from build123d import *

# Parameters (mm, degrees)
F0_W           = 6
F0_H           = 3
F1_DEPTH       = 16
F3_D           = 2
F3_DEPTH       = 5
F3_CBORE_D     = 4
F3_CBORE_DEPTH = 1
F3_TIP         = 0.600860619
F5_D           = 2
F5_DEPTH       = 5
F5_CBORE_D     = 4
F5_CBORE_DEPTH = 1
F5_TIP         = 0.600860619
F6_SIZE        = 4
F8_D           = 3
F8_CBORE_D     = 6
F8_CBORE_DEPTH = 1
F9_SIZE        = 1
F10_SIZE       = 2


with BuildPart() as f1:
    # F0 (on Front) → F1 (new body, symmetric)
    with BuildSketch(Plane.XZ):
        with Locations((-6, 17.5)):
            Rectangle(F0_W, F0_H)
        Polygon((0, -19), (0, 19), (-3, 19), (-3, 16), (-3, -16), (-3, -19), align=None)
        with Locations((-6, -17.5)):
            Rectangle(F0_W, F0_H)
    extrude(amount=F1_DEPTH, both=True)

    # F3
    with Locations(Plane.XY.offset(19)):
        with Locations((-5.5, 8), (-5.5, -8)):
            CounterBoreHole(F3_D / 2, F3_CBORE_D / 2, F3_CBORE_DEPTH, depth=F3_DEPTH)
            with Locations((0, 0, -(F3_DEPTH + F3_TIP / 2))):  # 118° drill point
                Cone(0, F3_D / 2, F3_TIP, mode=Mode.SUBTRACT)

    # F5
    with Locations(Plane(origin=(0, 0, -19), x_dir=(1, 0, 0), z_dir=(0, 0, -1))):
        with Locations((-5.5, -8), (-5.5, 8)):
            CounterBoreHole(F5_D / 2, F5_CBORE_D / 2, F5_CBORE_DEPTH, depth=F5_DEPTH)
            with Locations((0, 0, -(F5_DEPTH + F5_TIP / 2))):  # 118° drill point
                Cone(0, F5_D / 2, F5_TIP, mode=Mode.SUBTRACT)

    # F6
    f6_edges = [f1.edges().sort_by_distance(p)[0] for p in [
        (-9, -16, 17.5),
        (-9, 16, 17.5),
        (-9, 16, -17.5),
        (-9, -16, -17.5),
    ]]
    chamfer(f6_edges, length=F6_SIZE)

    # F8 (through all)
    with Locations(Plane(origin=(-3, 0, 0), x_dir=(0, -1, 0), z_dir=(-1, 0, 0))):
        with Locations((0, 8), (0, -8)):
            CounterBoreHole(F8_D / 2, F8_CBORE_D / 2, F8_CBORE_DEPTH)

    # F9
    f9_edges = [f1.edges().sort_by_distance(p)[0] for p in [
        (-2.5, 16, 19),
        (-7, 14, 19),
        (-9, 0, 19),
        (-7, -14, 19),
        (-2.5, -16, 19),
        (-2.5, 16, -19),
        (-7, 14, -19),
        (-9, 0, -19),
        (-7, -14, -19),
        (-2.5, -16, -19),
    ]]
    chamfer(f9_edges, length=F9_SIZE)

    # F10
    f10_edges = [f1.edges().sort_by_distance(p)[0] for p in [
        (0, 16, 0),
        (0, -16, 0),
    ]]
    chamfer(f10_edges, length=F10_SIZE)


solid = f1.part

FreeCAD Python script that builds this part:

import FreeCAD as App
import Part
import Sketcher

V = App.Vector
Q = App.Units.Quantity


def edges_at(feature, points):
    """Names of the edges that pass closest to the given points."""
    edges = feature.Shape.Edges
    near = lambda p: min(range(len(edges)), key=lambda i: edges[i].distToShape(Part.Vertex(*p))[0])
    return sorted({f"Edge{near(p) + 1}" for p in points})


def add_polygon(sketch, points):
    """Adds a closed chain of lines whose ends are joined by coincident constraints."""
    first, n = sketch.GeometryCount, len(points)
    for a, b in zip(points, points[1:] + points[:1]):
        sketch.addGeometry(Part.LineSegment(App.Vector(*a, 0), App.Vector(*b, 0)), False)
    for i in range(n):
        sketch.addConstraint(Sketcher.Constraint("Coincident", first + i, 2, first + (i + 1) % n, 1))

doc = App.newDocument("Part")
body = doc.addObject("PartDesign::Body", "Body")

# Sketch on XZ plane
sketch1 = body.newObject("Sketcher::SketchObject", "Sketch")
sketch1.AttachmentSupport = (doc.getObject("XZ_Plane"), [""])
sketch1.MapMode = "FlatFace"
add_polygon(sketch1, [(-9, 19), (-9, 16), (-3, 16), (-3, -16), (-9, -16), (-9, -19), (0, -19), (0, 19)])  # lines 0-7
sketch1.addConstraint([
    Sketcher.Constraint("Vertical", 0),
    Sketcher.Constraint("Horizontal", 1),
    Sketcher.Constraint("Vertical", 2),
    Sketcher.Constraint("Horizontal", 3),
    Sketcher.Constraint("Vertical", 4),
    Sketcher.Constraint("Horizontal", 5),
    Sketcher.Constraint("Vertical", 6),
    Sketcher.Constraint("Horizontal", 7),
    Sketcher.Constraint("Symmetric", 5, 2, 6, 2, -1, 1),
    Sketcher.Constraint("Symmetric", 0, 2, 3, 2, -1),
    Sketcher.Constraint("DistanceX", 1, 1, 1, 2, Q("6 mm")),
    Sketcher.Constraint("DistanceX", 5, 1, 5, 2, Q("9 mm")),
    Sketcher.Constraint("DistanceY", 0, 2, 0, 1, Q("3 mm")),
    Sketcher.Constraint("DistanceY", 2, 2, 2, 1, Q("32 mm")),
])
pad1 = body.newObject("PartDesign::Pad", "Pad")
pad1.Profile = sketch1
pad1.Length = 32
pad1.Midplane = True

# Sketch on XY plane
sketch2 = body.newObject("Sketcher::SketchObject", "Sketch001")
sketch2.AttachmentSupport = (doc.getObject("XY_Plane"), [""])
sketch2.MapMode = "FlatFace"
sketch2.AttachmentOffset = App.Placement(V(0, 0, 19), App.Rotation())
sketch2.addGeometry([
    Part.Circle(V(-5.5, 8, 0), V(0, 0, 1), 1),
    Part.Circle(V(-5.5, -8, 0), V(0, 0, 1), 1),
], False)
sketch2.addConstraint([
    Sketcher.Constraint("Equal", 0, 1),
    Sketcher.Constraint("Symmetric", 0, 3, 1, 3, -1),
    Sketcher.Constraint("Diameter", 0, Q("2 mm")),
    Sketcher.Constraint("DistanceY", -1, 1, 0, 3, Q("8 mm")),
    Sketcher.Constraint("DistanceX", 0, 3, -1, 1, Q("5.5 mm")),
])
doc.recompute()
hole = body.newObject("PartDesign::Hole", "Hole")
hole.Profile = sketch2
hole.ThreadType = "None"
hole.Diameter = 2
hole.DepthType = "Dimension"
hole.Depth = 5
hole.DrillPoint = "Angled"
hole.DrillPointAngle = 118
hole.HoleCutType = "Counterbore"
hole.HoleCutDiameter = 4
hole.HoleCutDepth = 1

# Sketch on XY plane
sketch3 = body.newObject("Sketcher::SketchObject", "Sketch002")
sketch3.AttachmentSupport = (doc.getObject("XY_Plane"), [""])
sketch3.MapMode = "FlatFace"
sketch3.AttachmentOffset = App.Placement(V(0, 0, -19), App.Rotation())
sketch3.addGeometry([
    Part.Circle(V(-5.5, 8, 0), V(0, 0, 1), 1),
    Part.Circle(V(-5.5, -8, 0), V(0, 0, 1), 1),
], False)
sketch3.addConstraint([
    Sketcher.Constraint("Equal", 0, 1),
    Sketcher.Constraint("Symmetric", 0, 3, 1, 3, -1),
    Sketcher.Constraint("Diameter", 0, Q("2 mm")),
    Sketcher.Constraint("DistanceY", -1, 1, 0, 3, Q("8 mm")),
    Sketcher.Constraint("DistanceX", 0, 3, -1, 1, Q("5.5 mm")),
])
doc.recompute()
hole2 = body.newObject("PartDesign::Hole", "Hole001")
hole2.Profile = sketch3
hole2.ThreadType = "None"
hole2.Diameter = 2
hole2.DepthType = "Dimension"
hole2.Depth = 5
hole2.DrillPoint = "Angled"
hole2.DrillPointAngle = 118
hole2.HoleCutType = "Counterbore"
hole2.HoleCutDiameter = 4
hole2.HoleCutDepth = 1
hole2.Reversed = True
doc.recompute()

chamfer = body.newObject("PartDesign::Chamfer", "Chamfer")
chamfer.Base = (hole2, edges_at(hole2, [
    (-9, -16, 17.5),
    (-9, 16, 17.5),
    (-9, 16, -17.5),
    (-9, -16, -17.5),
]))
chamfer.Size = 4

# Sketch on YZ plane
sketch4 = body.newObject("Sketcher::SketchObject", "Sketch003")
sketch4.AttachmentSupport = (doc.getObject("YZ_Plane"), [""])
sketch4.MapMode = "FlatFace"
sketch4.AttachmentOffset = App.Placement(V(0, 0, -3), App.Rotation())
sketch4.addGeometry([
    Part.Circle(V(0, 8, 0), V(0, 0, 1), 1.5),
    Part.Circle(V(0, -8, 0), V(0, 0, 1), 1.5),
], False)
sketch4.addConstraint([
    Sketcher.Constraint("Equal", 0, 1),
    Sketcher.Constraint("Symmetric", 0, 3, 1, 3, -1, 1),
    Sketcher.Constraint("PointOnObject", 0, 3, -2),
    Sketcher.Constraint("Diameter", 0, Q("3 mm")),
    Sketcher.Constraint("DistanceY", -1, 1, 0, 3, Q("8 mm")),
])
doc.recompute()
hole3 = body.newObject("PartDesign::Hole", "Hole002")
hole3.Profile = sketch4
hole3.ThreadType = "None"
hole3.Diameter = 3
hole3.DepthType = "ThroughAll"
hole3.HoleCutType = "Counterbore"
hole3.HoleCutDiameter = 6
hole3.HoleCutDepth = 1
hole3.Reversed = True
doc.recompute()

chamfer2 = body.newObject("PartDesign::Chamfer", "Chamfer001")
chamfer2.Base = (hole3, edges_at(hole3, [
    (-2.5, 16, 19),
    (-7, 14, 19),
    (-9, 0, 19),
    (-7, -14, 19),
    (-2.5, -16, 19),
    (-2.5, 16, -19),
    (-7, 14, -19),
    (-9, 0, -19),
    (-7, -14, -19),
    (-2.5, -16, -19),
]))
chamfer2.Size = 1
doc.recompute()

chamfer3 = body.newObject("PartDesign::Chamfer", "Chamfer002")
chamfer3.Base = (chamfer2, edges_at(chamfer2, [(0, 16, 0), (0, -16, 0)]))
chamfer3.Size = 2

doc.recompute()
